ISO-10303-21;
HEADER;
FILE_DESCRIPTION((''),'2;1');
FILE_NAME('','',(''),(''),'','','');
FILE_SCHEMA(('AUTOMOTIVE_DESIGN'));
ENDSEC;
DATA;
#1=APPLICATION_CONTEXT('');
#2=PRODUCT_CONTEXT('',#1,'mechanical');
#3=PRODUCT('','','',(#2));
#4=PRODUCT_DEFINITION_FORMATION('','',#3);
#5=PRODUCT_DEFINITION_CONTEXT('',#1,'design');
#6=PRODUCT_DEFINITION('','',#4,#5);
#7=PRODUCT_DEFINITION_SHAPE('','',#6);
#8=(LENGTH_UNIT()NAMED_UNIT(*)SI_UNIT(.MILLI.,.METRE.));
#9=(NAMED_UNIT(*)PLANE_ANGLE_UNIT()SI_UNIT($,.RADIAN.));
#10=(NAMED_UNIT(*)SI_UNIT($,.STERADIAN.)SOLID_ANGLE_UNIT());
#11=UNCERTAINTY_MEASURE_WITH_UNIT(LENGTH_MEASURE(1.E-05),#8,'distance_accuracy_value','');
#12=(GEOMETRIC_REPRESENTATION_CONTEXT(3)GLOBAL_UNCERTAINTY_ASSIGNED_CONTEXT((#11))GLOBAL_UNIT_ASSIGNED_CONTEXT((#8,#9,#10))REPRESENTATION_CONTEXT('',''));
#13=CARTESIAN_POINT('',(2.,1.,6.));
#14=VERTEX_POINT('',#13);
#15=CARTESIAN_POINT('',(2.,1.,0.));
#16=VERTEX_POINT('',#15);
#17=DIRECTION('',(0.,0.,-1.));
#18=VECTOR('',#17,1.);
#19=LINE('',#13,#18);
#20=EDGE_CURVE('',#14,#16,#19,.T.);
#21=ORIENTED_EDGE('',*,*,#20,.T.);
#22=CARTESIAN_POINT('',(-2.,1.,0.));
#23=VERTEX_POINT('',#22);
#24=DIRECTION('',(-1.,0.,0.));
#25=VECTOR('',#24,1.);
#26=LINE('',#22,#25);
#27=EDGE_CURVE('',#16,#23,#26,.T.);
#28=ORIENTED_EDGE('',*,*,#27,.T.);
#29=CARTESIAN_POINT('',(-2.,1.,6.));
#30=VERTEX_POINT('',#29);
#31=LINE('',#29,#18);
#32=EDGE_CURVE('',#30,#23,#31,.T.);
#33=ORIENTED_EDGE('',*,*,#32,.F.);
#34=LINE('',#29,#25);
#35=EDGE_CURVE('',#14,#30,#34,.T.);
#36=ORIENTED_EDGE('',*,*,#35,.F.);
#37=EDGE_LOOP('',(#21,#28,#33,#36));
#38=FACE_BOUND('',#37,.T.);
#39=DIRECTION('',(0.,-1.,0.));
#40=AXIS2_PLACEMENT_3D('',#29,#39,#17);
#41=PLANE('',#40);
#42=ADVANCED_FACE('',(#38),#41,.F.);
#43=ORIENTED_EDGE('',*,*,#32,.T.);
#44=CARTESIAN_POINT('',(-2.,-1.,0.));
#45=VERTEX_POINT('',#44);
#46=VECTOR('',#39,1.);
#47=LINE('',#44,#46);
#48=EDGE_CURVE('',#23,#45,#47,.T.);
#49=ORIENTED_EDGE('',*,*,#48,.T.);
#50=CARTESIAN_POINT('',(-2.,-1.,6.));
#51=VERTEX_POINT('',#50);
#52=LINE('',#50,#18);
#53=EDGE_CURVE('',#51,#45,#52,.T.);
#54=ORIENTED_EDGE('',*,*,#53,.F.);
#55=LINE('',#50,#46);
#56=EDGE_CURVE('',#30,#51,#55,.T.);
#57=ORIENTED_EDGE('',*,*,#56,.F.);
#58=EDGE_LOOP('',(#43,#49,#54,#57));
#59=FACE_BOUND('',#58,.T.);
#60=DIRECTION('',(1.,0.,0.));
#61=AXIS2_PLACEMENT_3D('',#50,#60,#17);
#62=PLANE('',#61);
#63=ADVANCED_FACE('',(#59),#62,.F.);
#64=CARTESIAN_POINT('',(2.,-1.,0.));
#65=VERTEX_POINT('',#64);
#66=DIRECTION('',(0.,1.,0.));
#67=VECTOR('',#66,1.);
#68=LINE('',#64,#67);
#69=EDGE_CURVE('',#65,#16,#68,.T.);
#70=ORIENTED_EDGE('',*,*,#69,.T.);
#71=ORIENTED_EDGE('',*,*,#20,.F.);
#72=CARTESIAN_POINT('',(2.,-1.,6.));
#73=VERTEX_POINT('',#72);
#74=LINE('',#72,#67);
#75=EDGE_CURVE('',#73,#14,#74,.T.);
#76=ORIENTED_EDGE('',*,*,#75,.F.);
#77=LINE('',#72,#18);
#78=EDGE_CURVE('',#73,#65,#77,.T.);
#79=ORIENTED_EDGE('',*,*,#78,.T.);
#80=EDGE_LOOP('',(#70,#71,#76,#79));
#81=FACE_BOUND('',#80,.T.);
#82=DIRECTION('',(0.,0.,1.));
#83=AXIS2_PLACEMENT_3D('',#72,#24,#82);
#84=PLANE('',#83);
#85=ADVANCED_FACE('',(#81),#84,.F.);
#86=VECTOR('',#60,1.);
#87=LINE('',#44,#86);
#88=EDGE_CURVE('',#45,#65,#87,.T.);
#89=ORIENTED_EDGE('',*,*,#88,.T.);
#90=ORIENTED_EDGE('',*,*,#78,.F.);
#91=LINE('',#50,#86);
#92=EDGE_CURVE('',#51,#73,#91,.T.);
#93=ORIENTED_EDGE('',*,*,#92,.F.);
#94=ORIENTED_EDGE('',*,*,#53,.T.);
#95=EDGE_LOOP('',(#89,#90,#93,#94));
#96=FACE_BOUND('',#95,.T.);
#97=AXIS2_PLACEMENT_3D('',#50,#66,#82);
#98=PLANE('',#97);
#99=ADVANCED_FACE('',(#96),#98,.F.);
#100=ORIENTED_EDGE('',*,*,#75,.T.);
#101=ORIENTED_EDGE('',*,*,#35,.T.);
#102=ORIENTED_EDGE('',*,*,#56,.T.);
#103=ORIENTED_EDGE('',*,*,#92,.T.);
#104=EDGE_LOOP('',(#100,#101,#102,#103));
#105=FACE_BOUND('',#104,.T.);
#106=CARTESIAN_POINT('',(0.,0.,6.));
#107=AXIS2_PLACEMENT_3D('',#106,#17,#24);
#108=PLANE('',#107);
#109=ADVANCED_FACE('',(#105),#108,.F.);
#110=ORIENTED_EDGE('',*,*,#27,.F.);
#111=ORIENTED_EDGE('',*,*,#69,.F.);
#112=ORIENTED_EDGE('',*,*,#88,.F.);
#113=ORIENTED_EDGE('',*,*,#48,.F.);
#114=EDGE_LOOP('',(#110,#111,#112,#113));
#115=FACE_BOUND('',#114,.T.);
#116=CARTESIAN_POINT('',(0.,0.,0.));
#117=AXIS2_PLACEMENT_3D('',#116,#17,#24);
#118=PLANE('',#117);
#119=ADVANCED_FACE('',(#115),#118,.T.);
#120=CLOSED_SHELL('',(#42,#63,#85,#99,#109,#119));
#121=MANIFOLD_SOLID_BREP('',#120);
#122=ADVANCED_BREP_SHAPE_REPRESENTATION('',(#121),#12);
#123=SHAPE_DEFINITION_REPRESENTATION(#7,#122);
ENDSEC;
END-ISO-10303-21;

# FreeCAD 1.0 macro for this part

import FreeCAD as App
import Part
import Sketcher

doc = App.newDocument("Part")
params = doc.addObject("Spreadsheet::Sheet", "Params")
for row, (alias, value) in enumerate([
    ("sketch1_width", "4 mm"),
    ("sketch1_height", "2 mm"),
    ("pad1_length", "6 mm"),
], start=1):
    params.set(f"A{row}", alias)
    params.set(f"B{row}", "=" + value)
    params.setAlias(f"B{row}", alias)

body = doc.addObject("PartDesign::Body", "Body")

sketch1 = body.newObject("Sketcher::SketchObject", "Sketch")
sketch1.AttachmentSupport = (doc.getObject("XY_Plane"), [""])
sketch1.MapMode = "FlatFace"
sketch1.addGeometry(Part.LineSegment(App.Vector(-2, 1, 0), App.Vector(-2, -1, 0)), False)
sketch1.addGeometry(Part.LineSegment(App.Vector(-2, -1, 0), App.Vector(2, -1, 0)), False)
sketch1.addGeometry(Part.LineSegment(App.Vector(2, -1, 0), App.Vector(2, 1, 0)), False)
sketch1.addGeometry(Part.LineSegment(App.Vector(2, 1, 0), App.Vector(-2, 1, 0)), False)
sketch1.addConstraint(Sketcher.Constraint("Coincident", 0, 2, 1, 1))
sketch1.addConstraint(Sketcher.Constraint("Coincident", 1, 2, 2, 1))
sketch1.addConstraint(Sketcher.Constraint("Coincident", 2, 2, 3, 1))
sketch1.addConstraint(Sketcher.Constraint("Coincident", 3, 2, 0, 1))
sketch1.addConstraint(Sketcher.Constraint("Vertical", 0))
sketch1.addConstraint(Sketcher.Constraint("Horizontal", 1))
sketch1.addConstraint(Sketcher.Constraint("Vertical", 2))
sketch1.addConstraint(Sketcher.Constraint("Horizontal", 3))
sketch1.addConstraint(Sketcher.Constraint("Symmetric", 0, 2, 2, 2, -1, 1))
sketch1.addConstraint(Sketcher.Constraint("DistanceX", 1, 1, 1, 2, 4.0))
sketch1.addConstraint(Sketcher.Constraint("DistanceY", 0, 2, 0, 1, 2.0))
sketch1.setExpression("Constraints[9]", "Params.sketch1_width")
sketch1.setExpression("Constraints[10]", "Params.sketch1_height")
pad1 = body.newObject("PartDesign::Pad", "Pad")
pad1.Profile = sketch1
pad1.setExpression("Length", "Params.pad1_length")

doc.recompute()
